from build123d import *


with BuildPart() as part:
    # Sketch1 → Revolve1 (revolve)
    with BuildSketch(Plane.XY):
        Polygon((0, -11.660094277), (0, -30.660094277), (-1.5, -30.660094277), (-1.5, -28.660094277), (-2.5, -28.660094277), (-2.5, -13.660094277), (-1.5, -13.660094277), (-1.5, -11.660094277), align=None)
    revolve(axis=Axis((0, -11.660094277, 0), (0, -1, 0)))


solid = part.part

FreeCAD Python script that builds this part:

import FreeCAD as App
import Part
import Sketcher
from FreeCAD import Vector

doc = App.newDocument("Part")
body = doc.addObject("PartDesign::Body", "Body")

# Sketch on XY plane
sketch1 = doc.addObject("Sketcher::SketchObject", "Sketch")
body.addObject(sketch1)
sketch1.AttachmentSupport = (doc.XY_Plane, [""])
sketch1.MapMode = "FlatFace"
sketch1.addGeometry(Part.LineSegment(Vector(0, -30.7, 0), Vector(0, -11.7, 0)), False)
sketch1.addGeometry(Part.LineSegment(Vector(0, -11.7, 0), Vector(-1.5, -11.7, 0)), False)
sketch1.addGeometry(Part.LineSegment(Vector(-1.5, -11.7, 0), Vector(-1.5, -13.7, 0)), False)
sketch1.addGeometry(Part.LineSegment(Vector(-1.5, -13.7, 0), Vector(-2.5, -13.7, 0)), False)
sketch1.addGeometry(Part.LineSegment(Vector(-2.5, -13.7, 0), Vector(-2.5, -28.7, 0)), False)
sketch1.addGeometry(Part.LineSegment(Vector(-2.5, -28.7, 0), Vector(-1.5, -28.7, 0)), False)
sketch1.addGeometry(Part.LineSegment(Vector(-1.5, -28.7, 0), Vector(-1.5, -30.7, 0)), False)
sketch1.addGeometry(Part.LineSegment(Vector(-1.5, -30.7, 0), Vector(0, -30.7, 0)), False)
sketch1.addConstraint(Sketcher.Constraint("Coincident", 0, 2, 1, 1))
sketch1.addConstraint(Sketcher.Constraint("Coincident", 1, 2, 2, 1))
sketch1.addConstraint(Sketcher.Constraint("Coincident", 2, 2, 3, 1))
sketch1.addConstraint(Sketcher.Constraint("Coincident", 3, 2, 4, 1))
sketch1.addConstraint(Sketcher.Constraint("Coincident", 4, 2, 5, 1))
sketch1.addConstraint(Sketcher.Constraint("Coincident", 5, 2, 6, 1))
sketch1.addConstraint(Sketcher.Constraint("Coincident", 6, 2, 7, 1))
sketch1.addConstraint(Sketcher.Constraint("Coincident", 7, 2, 0, 1))
sketch1.addConstraint(Sketcher.Constraint("Vertical", 0))
sketch1.addConstraint(Sketcher.Constraint("Horizontal", 1))
sketch1.addConstraint(Sketcher.Constraint("Vertical", 2))
sketch1.addConstraint(Sketcher.Constraint("Horizontal", 3))
sketch1.addConstraint(Sketcher.Constraint("Vertical", 4))
sketch1.addConstraint(Sketcher.Constraint("Horizontal", 5))
sketch1.addConstraint(Sketcher.Constraint("Vertical", 6))
sketch1.addConstraint(Sketcher.Constraint("Horizontal", 7))
sketch1.addConstraint(Sketcher.Constraint("PointOnObject", 0, 2, -2))
sketch1.addConstraint(Sketcher.Constraint("Vertical", 2, 2, 5, 2))
sketch1.addConstraint(Sketcher.Constraint("Equal", 2, 6))
sketch1.addConstraint(Sketcher.Constraint("DistanceX", 3, 2, 3, 1, 1.0))
sketch1.addConstraint(Sketcher.Constraint("DistanceY", 0, 1, 0, 2, 19.0))
sketch1.addConstraint(Sketcher.Constraint("DistanceY", 2, 2, 2, 1, 2.0))
sketch1.addConstraint(Sketcher.Constraint("DistanceX", 1, 2, 1, 1, 1.5))
sketch1.addConstraint(Sketcher.Constraint("DistanceY", 0, 2, -1, 1, 11.660094))
revolution = doc.addObject("PartDesign::Revolution", "Revolution")
body.addObject(revolution)
revolution.Profile = sketch1
revolution.ReferenceAxis = (sketch1, ["V_Axis"])
revolution.Angle = 360

doc.recompute()
